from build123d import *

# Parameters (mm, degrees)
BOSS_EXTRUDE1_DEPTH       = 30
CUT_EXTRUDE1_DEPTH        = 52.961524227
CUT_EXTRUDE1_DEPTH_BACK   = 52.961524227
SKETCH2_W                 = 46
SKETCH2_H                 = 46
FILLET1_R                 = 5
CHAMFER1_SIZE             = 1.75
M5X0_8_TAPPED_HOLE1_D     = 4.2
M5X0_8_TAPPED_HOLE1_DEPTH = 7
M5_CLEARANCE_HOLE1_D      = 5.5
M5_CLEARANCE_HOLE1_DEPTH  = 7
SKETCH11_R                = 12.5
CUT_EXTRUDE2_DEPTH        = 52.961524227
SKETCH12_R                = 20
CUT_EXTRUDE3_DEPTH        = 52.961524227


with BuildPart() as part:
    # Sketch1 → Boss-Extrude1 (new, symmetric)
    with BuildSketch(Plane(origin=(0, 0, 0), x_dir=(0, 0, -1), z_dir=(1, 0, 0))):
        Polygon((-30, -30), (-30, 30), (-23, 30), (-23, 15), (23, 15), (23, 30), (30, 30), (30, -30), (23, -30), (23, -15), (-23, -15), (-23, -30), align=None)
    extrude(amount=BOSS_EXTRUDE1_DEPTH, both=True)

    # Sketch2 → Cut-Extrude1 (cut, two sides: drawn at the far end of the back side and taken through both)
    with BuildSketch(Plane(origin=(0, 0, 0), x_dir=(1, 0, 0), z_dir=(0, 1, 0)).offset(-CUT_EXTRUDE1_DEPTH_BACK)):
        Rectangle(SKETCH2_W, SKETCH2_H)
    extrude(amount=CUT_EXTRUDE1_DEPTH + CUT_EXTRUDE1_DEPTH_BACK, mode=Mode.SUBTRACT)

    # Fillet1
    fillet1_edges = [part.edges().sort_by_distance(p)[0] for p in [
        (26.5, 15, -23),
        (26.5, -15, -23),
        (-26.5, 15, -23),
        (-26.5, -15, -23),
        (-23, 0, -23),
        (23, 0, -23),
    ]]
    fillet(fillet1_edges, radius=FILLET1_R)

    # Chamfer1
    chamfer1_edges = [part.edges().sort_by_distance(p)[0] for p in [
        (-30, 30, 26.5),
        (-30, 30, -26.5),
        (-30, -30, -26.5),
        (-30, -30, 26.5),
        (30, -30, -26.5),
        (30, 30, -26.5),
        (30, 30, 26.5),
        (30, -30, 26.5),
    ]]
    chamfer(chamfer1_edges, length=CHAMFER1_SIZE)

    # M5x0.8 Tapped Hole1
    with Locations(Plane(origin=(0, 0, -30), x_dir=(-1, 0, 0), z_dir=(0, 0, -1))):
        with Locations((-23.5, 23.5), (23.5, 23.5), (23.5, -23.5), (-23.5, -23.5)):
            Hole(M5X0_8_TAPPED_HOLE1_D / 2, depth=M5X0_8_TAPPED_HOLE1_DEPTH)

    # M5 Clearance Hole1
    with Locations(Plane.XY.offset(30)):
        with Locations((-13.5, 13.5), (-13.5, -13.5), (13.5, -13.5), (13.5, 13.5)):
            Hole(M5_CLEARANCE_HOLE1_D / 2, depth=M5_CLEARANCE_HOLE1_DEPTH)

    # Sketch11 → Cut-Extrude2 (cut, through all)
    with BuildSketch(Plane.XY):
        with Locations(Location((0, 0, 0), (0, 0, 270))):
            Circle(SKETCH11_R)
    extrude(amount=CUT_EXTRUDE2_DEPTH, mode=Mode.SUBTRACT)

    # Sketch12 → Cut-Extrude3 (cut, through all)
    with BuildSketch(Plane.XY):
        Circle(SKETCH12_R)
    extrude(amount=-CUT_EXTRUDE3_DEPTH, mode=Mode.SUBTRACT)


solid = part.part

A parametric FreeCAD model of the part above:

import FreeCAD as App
import Part
import Sketcher
Q = App.Units.Quantity


def edges_at(feature, points):
    """Names of the edges that pass closest to the given points."""
    edges = feature.Shape.Edges
    near = lambda p: min(range(len(edges)), key=lambda i: edges[i].distToShape(Part.Vertex(*p))[0])
    return sorted({f"Edge{near(p) + 1}" for p in points})

doc = App.newDocument("Part")
body = doc.addObject("PartDesign::Body", "Body")

# Sketch on YZ plane
sketch1 = doc.addObject("Sketcher::SketchObject", "Sketch")
body.addObject(sketch1)
sketch1.AttachmentSupport = (doc.YZ_Plane, [""])
sketch1.MapMode = "FlatFace"
sketch1.addGeometry(Part.LineSegment(App.Vector(30, 30, 0), App.Vector(-30, 30, 0)), False)
sketch1.addGeometry(Part.LineSegment(App.Vector(-30, 30, 0), App.Vector(-30, 23, 0)), False)
sketch1.addGeometry(Part.LineSegment(App.Vector(-30, 23, 0), App.Vector(-15, 23, 0)), False)
sketch1.addGeometry(Part.LineSegment(App.Vector(-15, 23, 0), App.Vector(-15, -23, 0)), False)
sketch1.addGeometry(Part.LineSegment(App.Vector(-15, -23, 0), App.Vector(-30, -23, 0)), False)
sketch1.addGeometry(Part.LineSegment(App.Vector(-30, -23, 0), App.Vector(-30, -30, 0)), False)
sketch1.addGeometry(Part.LineSegment(App.Vector(-30, -30, 0), App.Vector(30, -30, 0)), False)
sketch1.addGeometry(Part.LineSegment(App.Vector(30, -30, 0), App.Vector(30, -23, 0)), False)
sketch1.addGeometry(Part.LineSegment(App.Vector(30, -23, 0), App.Vector(15, -23, 0)), False)
sketch1.addGeometry(Part.LineSegment(App.Vector(15, -23, 0), App.Vector(15, 23, 0)), False)
sketch1.addGeometry(Part.LineSegment(App.Vector(15, 23, 0), App.Vector(30, 23, 0)), False)
sketch1.addGeometry(Part.LineSegment(App.Vector(30, 23, 0), App.Vector(30, 30, 0)), False)
sketch1.addConstraint(Sketcher.Constraint("Coincident", 0, 2, 1, 1))
sketch1.addConstraint(Sketcher.Constraint("Coincident", 1, 2, 2, 1))
sketch1.addConstraint(Sketcher.Constraint("Coincident", 2, 2, 3, 1))
sketch1.addConstraint(Sketcher.Constraint("Coincident", 3, 2, 4, 1))
sketch1.addConstraint(Sketcher.Constraint("Coincident", 4, 2, 5, 1))
sketch1.addConstraint(Sketcher.Constraint("Coincident", 5, 2, 6, 1))
sketch1.addConstraint(Sketcher.Constraint("Coincident", 6, 2, 7, 1))
sketch1.addConstraint(Sketcher.Constraint("Coincident", 7, 2, 8, 1))
sketch1.addConstraint(Sketcher.Constraint("Coincident", 8, 2, 9, 1))
sketch1.addConstraint(Sketcher.Constraint("Coincident", 9, 2, 10, 1))
sketch1.addConstraint(Sketcher.Constraint("Coincident", 10, 2, 11, 1))
sketch1.addConstraint(Sketcher.Constraint("Coincident", 11, 2, 0, 1))
sketch1.addConstraint(Sketcher.Constraint("Horizontal", 0))
sketch1.addConstraint(Sketcher.Constraint("Vertical", 1))
sketch1.addConstraint(Sketcher.Constraint("Horizontal", 2))
sketch1.addConstraint(Sketcher.Constraint("Vertical", 3))
sketch1.addConstraint(Sketcher.Constraint("Horizontal", 4))
sketch1.addConstraint(Sketcher.Constraint("Vertical", 5))
sketch1.addConstraint(Sketcher.Constraint("Horizontal", 6))
sketch1.addConstraint(Sketcher.Constraint("Vertical", 7))
sketch1.addConstraint(Sketcher.Constraint("Horizontal", 8))
sketch1.addConstraint(Sketcher.Constraint("Vertical", 9))
sketch1.addConstraint(Sketcher.Constraint("Horizontal", 10))
sketch1.addConstraint(Sketcher.Constraint("Vertical", 11))
sketch1.addConstraint(Sketcher.Constraint("Symmetric", 0, 2, 6, 2, -1, 1))
sketch1.addConstraint(Sketcher.Constraint("Symmetric", 2, 2, 8, 2, -1, 1))
sketch1.addConstraint(Sketcher.Constraint("Symmetric", 4, 2, 10, 2, -1, 1))
sketch1.addConstraint(Sketcher.Constraint("Symmetric", 4, 2, 7, 2, -2))
sketch1.addConstraint(Sketcher.Constraint("DistanceX", 0, 2, 0, 1, Q("60 mm")))
sketch1.addConstraint(Sketcher.Constraint("DistanceX", 2, 1, 2, 2, Q("15 mm")))
sketch1.addConstraint(Sketcher.Constraint("DistanceY", 1, 2, 1, 1, Q("7 mm")))
sketch1.addConstraint(Sketcher.Constraint("DistanceY", 3, 2, 3, 1, Q("46 mm")))
pad1 = doc.addObject("PartDesign::Pad", "Pad")
body.addObject(pad1)
pad1.Profile = sketch1
pad1.Length = 60
pad1.Midplane = True

# Sketch on XZ plane
sketch2 = doc.addObject("Sketcher::SketchObject", "Sketch001")
body.addObject(sketch2)
sketch2.AttachmentSupport = (doc.XZ_Plane, [""])
sketch2.MapMode = "FlatFace"
sketch2.addGeometry(Part.LineSegment(App.Vector(-23, -23, 0), App.Vector(-23, 23, 0)), False)
sketch2.addGeometry(Part.LineSegment(App.Vector(-23, 23, 0), App.Vector(23, 23, 0)), False)
sketch2.addGeometry(Part.LineSegment(App.Vector(23, 23, 0), App.Vector(23, -23, 0)), False)
sketch2.addGeometry(Part.LineSegment(App.Vector(23, -23, 0), App.Vector(-23, -23, 0)), False)
sketch2.addConstraint(Sketcher.Constraint("Coincident", 0, 2, 1, 1))
sketch2.addConstraint(Sketcher.Constraint("Coincident", 1, 2, 2, 1))
sketch2.addConstraint(Sketcher.Constraint("Coincident", 2, 2, 3, 1))
sketch2.addConstraint(Sketcher.Constraint("Coincident", 3, 2, 0, 1))
sketch2.addConstraint(Sketcher.Constraint("Vertical", 0))
sketch2.addConstraint(Sketcher.Constraint("Horizontal", 1))
sketch2.addConstraint(Sketcher.Constraint("Vertical", 2))
sketch2.addConstraint(Sketcher.Constraint("Horizontal", 3))
sketch2.addConstraint(Sketcher.Constraint("Symmetric", 0, 2, 2, 2, -1, 1))
sketch2.addConstraint(Sketcher.Constraint("Equal", 3, 0))
sketch2.addConstraint(Sketcher.Constraint("DistanceX", 1, 1, 1, 2, Q("46 mm")))
pocket1 = doc.addObject("PartDesign::Pocket", "Pocket")
body.addObject(pocket1)
pocket1.Profile = sketch2
pocket1.Type = "ThroughAll"
pocket1.Midplane = True
doc.recompute()

fillet = doc.addObject("PartDesign::Fillet", "Fillet")
body.addObject(fillet)
fillet.Base = (pocket1, edges_at(pocket1, [
    (26.5, 15, -23),
    (26.5, -15, -23),
    (-26.5, 15, -23),
    (-26.5, -15, -23),
    (-23, 0, -23),
    (23, 0, -23),
]))
fillet.Radius = 5
doc.recompute()

chamfer = doc.addObject("PartDesign::Chamfer", "Chamfer")
body.addObject(chamfer)
chamfer.Base = (fillet, edges_at(fillet, [
    (-30, 30, 26.5),
    (-30, 30, -26.5),
    (-30, -30, -26.5),
    (-30, -30, 26.5),
    (30, -30, -26.5),
    (30, 30, -26.5),
    (30, 30, 26.5),
    (30, -30, 26.5),
]))
chamfer.Size = 1.75

# Sketch on XY plane
sketch3 = doc.addObject("Sketcher::SketchObject", "Sketch002")
body.addObject(sketch3)
sketch3.AttachmentSupport = (doc.XY_Plane, [""])
sketch3.MapMode = "FlatFace"
sketch3.AttachmentOffset = App.Placement(App.Vector(0, 0, -30), App.Rotation())
sketch3.addGeometry(Part.Circle(App.Vector(23.5, 23.5, 0), App.Vector(0, 0, 1), 2.1), False)
sketch3.addGeometry(Part.Circle(App.Vector(-23.5, 23.5, 0), App.Vector(0, 0, 1), 2.1), False)
sketch3.addGeometry(Part.Circle(App.Vector(-23.5, -23.5, 0), App.Vector(0, 0, 1), 2.1), False)
sketch3.addGeometry(Part.Circle(App.Vector(23.5, -23.5, 0), App.Vector(0, 0, 1), 2.1), False)
sketch3.addConstraint(Sketcher.Constraint("Equal", 0, 1))
sketch3.addConstraint(Sketcher.Constraint("Equal", 1, 2))
sketch3.addConstraint(Sketcher.Constraint("Equal", 2, 3))
sketch3.addConstraint(Sketcher.Constraint("Symmetric", 0, 3, 2, 3, -1, 1))
sketch3.addConstraint(Sketcher.Constraint("Symmetric", 1, 3, 3, 3, -1, 1))
sketch3.addConstraint(Sketcher.Constraint("Symmetric", 0, 3, 1, 3, -2))
sketch3.addConstraint(Sketcher.Constraint("Diameter", 0, Q("4.2 mm")))
sketch3.addConstraint(Sketcher.Constraint("DistanceX", 1, 3, 0, 3, Q("47 mm")))
sketch3.addConstraint(Sketcher.Constraint("DistanceY", 2, 3, 1, 3, Q("47 mm")))
doc.recompute()
hole = doc.addObject("PartDesign::Hole", "Hole")
body.addObject(hole)
hole.Profile = sketch3
hole.ThreadType = "None"
hole.Diameter = 4.2
hole.DepthType = "Dimension"
hole.Depth = 7
hole.DrillPoint = "Flat"
hole.Reversed = True

# Sketch on XY plane
sketch4 = doc.addObject("Sketcher::SketchObject", "Sketch003")
body.addObject(sketch4)
sketch4.AttachmentSupport = (doc.XY_Plane, [""])
sketch4.MapMode = "FlatFace"
sketch4.AttachmentOffset = App.Placement(App.Vector(0, 0, 30), App.Rotation())
sketch4.addGeometry(Part.Circle(App.Vector(-13.5, 13.5, 0), App.Vector(0, 0, 1), 2.75), False)
sketch4.addGeometry(Part.Circle(App.Vector(-13.5, -13.5, 0), App.Vector(0, 0, 1), 2.75), False)
sketch4.addGeometry(Part.Circle(App.Vector(13.5, -13.5, 0), App.Vector(0, 0, 1), 2.75), False)
sketch4.addGeometry(Part.Circle(App.Vector(13.5, 13.5, 0), App.Vector(0, 0, 1), 2.75), False)
sketch4.addConstraint(Sketcher.Constraint("Equal", 0, 1))
sketch4.addConstraint(Sketcher.Constraint("Equal", 1, 2))
sketch4.addConstraint(Sketcher.Constraint("Equal", 2, 3))
sketch4.addConstraint(Sketcher.Constraint("Symmetric", 0, 3, 2, 3, -1, 1))
sketch4.addConstraint(Sketcher.Constraint("Symmetric", 1, 3, 3, 3, -1, 1))
sketch4.addConstraint(Sketcher.Constraint("Symmetric", 1, 3, 2, 3, -2))
sketch4.addConstraint(Sketcher.Constraint("Diameter", 0, Q("5.5 mm")))
sketch4.addConstraint(Sketcher.Constraint("DistanceY", 1, 3, 0, 3, Q("27 mm")))
sketch4.addConstraint(Sketcher.Constraint("DistanceX", 1, 3, 2, 3, Q("27 mm")))
doc.recompute()
hole2 = doc.addObject("PartDesign::Hole", "Hole001")
body.addObject(hole2)
hole2.Profile = sketch4
hole2.ThreadType = "None"
hole2.Diameter = 5.5
hole2.DepthType = "Dimension"
hole2.Depth = 7
hole2.DrillPoint = "Flat"

# Sketch on XY plane
sketch5 = doc.addObject("Sketcher::SketchObject", "Sketch004")
body.addObject(sketch5)
sketch5.AttachmentSupport = (doc.XY_Plane, [""])
sketch5.MapMode = "FlatFace"
sketch5.addGeometry(Part.Circle(App.Vector(0, 0, 0), App.Vector(0, 0, 1), 12.5), False)
sketch5.addConstraint(Sketcher.Constraint("Coincident", 0, 3, -1, 1))
sketch5.addConstraint(Sketcher.Constraint("Diameter", 0, Q("25 mm")))
pocket2 = doc.addObject("PartDesign::Pocket", "Pocket001")
body.addObject(pocket2)
pocket2.Profile = sketch5
pocket2.Type = "ThroughAll"
pocket2.Reversed = True

# Sketch on XY plane
sketch6 = doc.addObject("Sketcher::SketchObject", "Sketch005")
body.addObject(sketch6)
sketch6.AttachmentSupport = (doc.XY_Plane, [""])
sketch6.MapMode = "FlatFace"
sketch6.addGeometry(Part.Circle(App.Vector(0, 0, 0), App.Vector(0, 0, 1), 20), False)
sketch6.addConstraint(Sketcher.Constraint("Coincident", 0, 3, -1, 1))
sketch6.addConstraint(Sketcher.Constraint("Diameter", 0, Q("40 mm")))
pocket3 = doc.addObject("PartDesign::Pocket", "Pocket002")
body.addObject(pocket3)
pocket3.Profile = sketch6
pocket3.Type = "ThroughAll"

doc.recompute()
